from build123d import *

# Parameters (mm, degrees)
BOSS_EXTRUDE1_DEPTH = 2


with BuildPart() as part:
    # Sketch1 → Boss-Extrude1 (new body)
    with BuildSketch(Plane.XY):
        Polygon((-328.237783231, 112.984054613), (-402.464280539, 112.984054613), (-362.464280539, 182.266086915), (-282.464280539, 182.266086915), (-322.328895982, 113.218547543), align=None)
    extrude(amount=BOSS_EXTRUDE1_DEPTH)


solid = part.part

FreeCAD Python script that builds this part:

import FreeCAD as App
import Part
import Sketcher
Q = App.Units.Quantity


def add_polygon(sketch, points):
    """Adds a closed chain of lines whose ends are joined by coincident constraints."""
    first, n = sketch.GeometryCount, len(points)
    for a, b in zip(points, points[1:] + points[:1]):
        sketch.addGeometry(Part.LineSegment(App.Vector(*a, 0), App.Vector(*b, 0)), False)
    for i in range(n):
        sketch.addConstraint(Sketcher.Constraint("Coincident", first + i, 2, first + (i + 1) % n, 1))

doc = App.newDocument("Part")
body = doc.addObject("PartDesign::Body", "Body")

sketch1 = body.newObject("Sketcher::SketchObject", "Sketch")
sketch1.AttachmentSupport = (doc.getObject("XY_Plane"), [""])
sketch1.MapMode = "FlatFace"
add_polygon(sketch1, [(-402, 113), (-328, 113), (-322, 113), (-282, 182), (-362, 182)])
sketch1.addConstraint([
    Sketcher.Constraint("Horizontal", 0),
    Sketcher.Constraint("Horizontal", 3),
    Sketcher.Constraint("Parallel", 2, 4),
    Sketcher.Constraint("DistanceX", 3, 2, 3, 1, Q("80 mm")),
    Sketcher.Constraint("Angle", 2, Q("60 deg")),
    Sketcher.Constraint("Distance", 4, Q("80 mm")),
    Sketcher.Constraint("Distance", 1, Q("5.913538 mm")),
    Sketcher.Constraint("Distance", 2, Q("79.729231 mm")),
    Sketcher.Constraint("DistanceX", 2, 2, -1, 1, Q("282.464281 mm")),
    Sketcher.Constraint("DistanceY", -1, 1, 0, 2, Q("112.984055 mm")),
])
pad1 = body.newObject("PartDesign::Pad", "Pad")
pad1.Profile = sketch1
pad1.Length = 2

doc.recompute()
